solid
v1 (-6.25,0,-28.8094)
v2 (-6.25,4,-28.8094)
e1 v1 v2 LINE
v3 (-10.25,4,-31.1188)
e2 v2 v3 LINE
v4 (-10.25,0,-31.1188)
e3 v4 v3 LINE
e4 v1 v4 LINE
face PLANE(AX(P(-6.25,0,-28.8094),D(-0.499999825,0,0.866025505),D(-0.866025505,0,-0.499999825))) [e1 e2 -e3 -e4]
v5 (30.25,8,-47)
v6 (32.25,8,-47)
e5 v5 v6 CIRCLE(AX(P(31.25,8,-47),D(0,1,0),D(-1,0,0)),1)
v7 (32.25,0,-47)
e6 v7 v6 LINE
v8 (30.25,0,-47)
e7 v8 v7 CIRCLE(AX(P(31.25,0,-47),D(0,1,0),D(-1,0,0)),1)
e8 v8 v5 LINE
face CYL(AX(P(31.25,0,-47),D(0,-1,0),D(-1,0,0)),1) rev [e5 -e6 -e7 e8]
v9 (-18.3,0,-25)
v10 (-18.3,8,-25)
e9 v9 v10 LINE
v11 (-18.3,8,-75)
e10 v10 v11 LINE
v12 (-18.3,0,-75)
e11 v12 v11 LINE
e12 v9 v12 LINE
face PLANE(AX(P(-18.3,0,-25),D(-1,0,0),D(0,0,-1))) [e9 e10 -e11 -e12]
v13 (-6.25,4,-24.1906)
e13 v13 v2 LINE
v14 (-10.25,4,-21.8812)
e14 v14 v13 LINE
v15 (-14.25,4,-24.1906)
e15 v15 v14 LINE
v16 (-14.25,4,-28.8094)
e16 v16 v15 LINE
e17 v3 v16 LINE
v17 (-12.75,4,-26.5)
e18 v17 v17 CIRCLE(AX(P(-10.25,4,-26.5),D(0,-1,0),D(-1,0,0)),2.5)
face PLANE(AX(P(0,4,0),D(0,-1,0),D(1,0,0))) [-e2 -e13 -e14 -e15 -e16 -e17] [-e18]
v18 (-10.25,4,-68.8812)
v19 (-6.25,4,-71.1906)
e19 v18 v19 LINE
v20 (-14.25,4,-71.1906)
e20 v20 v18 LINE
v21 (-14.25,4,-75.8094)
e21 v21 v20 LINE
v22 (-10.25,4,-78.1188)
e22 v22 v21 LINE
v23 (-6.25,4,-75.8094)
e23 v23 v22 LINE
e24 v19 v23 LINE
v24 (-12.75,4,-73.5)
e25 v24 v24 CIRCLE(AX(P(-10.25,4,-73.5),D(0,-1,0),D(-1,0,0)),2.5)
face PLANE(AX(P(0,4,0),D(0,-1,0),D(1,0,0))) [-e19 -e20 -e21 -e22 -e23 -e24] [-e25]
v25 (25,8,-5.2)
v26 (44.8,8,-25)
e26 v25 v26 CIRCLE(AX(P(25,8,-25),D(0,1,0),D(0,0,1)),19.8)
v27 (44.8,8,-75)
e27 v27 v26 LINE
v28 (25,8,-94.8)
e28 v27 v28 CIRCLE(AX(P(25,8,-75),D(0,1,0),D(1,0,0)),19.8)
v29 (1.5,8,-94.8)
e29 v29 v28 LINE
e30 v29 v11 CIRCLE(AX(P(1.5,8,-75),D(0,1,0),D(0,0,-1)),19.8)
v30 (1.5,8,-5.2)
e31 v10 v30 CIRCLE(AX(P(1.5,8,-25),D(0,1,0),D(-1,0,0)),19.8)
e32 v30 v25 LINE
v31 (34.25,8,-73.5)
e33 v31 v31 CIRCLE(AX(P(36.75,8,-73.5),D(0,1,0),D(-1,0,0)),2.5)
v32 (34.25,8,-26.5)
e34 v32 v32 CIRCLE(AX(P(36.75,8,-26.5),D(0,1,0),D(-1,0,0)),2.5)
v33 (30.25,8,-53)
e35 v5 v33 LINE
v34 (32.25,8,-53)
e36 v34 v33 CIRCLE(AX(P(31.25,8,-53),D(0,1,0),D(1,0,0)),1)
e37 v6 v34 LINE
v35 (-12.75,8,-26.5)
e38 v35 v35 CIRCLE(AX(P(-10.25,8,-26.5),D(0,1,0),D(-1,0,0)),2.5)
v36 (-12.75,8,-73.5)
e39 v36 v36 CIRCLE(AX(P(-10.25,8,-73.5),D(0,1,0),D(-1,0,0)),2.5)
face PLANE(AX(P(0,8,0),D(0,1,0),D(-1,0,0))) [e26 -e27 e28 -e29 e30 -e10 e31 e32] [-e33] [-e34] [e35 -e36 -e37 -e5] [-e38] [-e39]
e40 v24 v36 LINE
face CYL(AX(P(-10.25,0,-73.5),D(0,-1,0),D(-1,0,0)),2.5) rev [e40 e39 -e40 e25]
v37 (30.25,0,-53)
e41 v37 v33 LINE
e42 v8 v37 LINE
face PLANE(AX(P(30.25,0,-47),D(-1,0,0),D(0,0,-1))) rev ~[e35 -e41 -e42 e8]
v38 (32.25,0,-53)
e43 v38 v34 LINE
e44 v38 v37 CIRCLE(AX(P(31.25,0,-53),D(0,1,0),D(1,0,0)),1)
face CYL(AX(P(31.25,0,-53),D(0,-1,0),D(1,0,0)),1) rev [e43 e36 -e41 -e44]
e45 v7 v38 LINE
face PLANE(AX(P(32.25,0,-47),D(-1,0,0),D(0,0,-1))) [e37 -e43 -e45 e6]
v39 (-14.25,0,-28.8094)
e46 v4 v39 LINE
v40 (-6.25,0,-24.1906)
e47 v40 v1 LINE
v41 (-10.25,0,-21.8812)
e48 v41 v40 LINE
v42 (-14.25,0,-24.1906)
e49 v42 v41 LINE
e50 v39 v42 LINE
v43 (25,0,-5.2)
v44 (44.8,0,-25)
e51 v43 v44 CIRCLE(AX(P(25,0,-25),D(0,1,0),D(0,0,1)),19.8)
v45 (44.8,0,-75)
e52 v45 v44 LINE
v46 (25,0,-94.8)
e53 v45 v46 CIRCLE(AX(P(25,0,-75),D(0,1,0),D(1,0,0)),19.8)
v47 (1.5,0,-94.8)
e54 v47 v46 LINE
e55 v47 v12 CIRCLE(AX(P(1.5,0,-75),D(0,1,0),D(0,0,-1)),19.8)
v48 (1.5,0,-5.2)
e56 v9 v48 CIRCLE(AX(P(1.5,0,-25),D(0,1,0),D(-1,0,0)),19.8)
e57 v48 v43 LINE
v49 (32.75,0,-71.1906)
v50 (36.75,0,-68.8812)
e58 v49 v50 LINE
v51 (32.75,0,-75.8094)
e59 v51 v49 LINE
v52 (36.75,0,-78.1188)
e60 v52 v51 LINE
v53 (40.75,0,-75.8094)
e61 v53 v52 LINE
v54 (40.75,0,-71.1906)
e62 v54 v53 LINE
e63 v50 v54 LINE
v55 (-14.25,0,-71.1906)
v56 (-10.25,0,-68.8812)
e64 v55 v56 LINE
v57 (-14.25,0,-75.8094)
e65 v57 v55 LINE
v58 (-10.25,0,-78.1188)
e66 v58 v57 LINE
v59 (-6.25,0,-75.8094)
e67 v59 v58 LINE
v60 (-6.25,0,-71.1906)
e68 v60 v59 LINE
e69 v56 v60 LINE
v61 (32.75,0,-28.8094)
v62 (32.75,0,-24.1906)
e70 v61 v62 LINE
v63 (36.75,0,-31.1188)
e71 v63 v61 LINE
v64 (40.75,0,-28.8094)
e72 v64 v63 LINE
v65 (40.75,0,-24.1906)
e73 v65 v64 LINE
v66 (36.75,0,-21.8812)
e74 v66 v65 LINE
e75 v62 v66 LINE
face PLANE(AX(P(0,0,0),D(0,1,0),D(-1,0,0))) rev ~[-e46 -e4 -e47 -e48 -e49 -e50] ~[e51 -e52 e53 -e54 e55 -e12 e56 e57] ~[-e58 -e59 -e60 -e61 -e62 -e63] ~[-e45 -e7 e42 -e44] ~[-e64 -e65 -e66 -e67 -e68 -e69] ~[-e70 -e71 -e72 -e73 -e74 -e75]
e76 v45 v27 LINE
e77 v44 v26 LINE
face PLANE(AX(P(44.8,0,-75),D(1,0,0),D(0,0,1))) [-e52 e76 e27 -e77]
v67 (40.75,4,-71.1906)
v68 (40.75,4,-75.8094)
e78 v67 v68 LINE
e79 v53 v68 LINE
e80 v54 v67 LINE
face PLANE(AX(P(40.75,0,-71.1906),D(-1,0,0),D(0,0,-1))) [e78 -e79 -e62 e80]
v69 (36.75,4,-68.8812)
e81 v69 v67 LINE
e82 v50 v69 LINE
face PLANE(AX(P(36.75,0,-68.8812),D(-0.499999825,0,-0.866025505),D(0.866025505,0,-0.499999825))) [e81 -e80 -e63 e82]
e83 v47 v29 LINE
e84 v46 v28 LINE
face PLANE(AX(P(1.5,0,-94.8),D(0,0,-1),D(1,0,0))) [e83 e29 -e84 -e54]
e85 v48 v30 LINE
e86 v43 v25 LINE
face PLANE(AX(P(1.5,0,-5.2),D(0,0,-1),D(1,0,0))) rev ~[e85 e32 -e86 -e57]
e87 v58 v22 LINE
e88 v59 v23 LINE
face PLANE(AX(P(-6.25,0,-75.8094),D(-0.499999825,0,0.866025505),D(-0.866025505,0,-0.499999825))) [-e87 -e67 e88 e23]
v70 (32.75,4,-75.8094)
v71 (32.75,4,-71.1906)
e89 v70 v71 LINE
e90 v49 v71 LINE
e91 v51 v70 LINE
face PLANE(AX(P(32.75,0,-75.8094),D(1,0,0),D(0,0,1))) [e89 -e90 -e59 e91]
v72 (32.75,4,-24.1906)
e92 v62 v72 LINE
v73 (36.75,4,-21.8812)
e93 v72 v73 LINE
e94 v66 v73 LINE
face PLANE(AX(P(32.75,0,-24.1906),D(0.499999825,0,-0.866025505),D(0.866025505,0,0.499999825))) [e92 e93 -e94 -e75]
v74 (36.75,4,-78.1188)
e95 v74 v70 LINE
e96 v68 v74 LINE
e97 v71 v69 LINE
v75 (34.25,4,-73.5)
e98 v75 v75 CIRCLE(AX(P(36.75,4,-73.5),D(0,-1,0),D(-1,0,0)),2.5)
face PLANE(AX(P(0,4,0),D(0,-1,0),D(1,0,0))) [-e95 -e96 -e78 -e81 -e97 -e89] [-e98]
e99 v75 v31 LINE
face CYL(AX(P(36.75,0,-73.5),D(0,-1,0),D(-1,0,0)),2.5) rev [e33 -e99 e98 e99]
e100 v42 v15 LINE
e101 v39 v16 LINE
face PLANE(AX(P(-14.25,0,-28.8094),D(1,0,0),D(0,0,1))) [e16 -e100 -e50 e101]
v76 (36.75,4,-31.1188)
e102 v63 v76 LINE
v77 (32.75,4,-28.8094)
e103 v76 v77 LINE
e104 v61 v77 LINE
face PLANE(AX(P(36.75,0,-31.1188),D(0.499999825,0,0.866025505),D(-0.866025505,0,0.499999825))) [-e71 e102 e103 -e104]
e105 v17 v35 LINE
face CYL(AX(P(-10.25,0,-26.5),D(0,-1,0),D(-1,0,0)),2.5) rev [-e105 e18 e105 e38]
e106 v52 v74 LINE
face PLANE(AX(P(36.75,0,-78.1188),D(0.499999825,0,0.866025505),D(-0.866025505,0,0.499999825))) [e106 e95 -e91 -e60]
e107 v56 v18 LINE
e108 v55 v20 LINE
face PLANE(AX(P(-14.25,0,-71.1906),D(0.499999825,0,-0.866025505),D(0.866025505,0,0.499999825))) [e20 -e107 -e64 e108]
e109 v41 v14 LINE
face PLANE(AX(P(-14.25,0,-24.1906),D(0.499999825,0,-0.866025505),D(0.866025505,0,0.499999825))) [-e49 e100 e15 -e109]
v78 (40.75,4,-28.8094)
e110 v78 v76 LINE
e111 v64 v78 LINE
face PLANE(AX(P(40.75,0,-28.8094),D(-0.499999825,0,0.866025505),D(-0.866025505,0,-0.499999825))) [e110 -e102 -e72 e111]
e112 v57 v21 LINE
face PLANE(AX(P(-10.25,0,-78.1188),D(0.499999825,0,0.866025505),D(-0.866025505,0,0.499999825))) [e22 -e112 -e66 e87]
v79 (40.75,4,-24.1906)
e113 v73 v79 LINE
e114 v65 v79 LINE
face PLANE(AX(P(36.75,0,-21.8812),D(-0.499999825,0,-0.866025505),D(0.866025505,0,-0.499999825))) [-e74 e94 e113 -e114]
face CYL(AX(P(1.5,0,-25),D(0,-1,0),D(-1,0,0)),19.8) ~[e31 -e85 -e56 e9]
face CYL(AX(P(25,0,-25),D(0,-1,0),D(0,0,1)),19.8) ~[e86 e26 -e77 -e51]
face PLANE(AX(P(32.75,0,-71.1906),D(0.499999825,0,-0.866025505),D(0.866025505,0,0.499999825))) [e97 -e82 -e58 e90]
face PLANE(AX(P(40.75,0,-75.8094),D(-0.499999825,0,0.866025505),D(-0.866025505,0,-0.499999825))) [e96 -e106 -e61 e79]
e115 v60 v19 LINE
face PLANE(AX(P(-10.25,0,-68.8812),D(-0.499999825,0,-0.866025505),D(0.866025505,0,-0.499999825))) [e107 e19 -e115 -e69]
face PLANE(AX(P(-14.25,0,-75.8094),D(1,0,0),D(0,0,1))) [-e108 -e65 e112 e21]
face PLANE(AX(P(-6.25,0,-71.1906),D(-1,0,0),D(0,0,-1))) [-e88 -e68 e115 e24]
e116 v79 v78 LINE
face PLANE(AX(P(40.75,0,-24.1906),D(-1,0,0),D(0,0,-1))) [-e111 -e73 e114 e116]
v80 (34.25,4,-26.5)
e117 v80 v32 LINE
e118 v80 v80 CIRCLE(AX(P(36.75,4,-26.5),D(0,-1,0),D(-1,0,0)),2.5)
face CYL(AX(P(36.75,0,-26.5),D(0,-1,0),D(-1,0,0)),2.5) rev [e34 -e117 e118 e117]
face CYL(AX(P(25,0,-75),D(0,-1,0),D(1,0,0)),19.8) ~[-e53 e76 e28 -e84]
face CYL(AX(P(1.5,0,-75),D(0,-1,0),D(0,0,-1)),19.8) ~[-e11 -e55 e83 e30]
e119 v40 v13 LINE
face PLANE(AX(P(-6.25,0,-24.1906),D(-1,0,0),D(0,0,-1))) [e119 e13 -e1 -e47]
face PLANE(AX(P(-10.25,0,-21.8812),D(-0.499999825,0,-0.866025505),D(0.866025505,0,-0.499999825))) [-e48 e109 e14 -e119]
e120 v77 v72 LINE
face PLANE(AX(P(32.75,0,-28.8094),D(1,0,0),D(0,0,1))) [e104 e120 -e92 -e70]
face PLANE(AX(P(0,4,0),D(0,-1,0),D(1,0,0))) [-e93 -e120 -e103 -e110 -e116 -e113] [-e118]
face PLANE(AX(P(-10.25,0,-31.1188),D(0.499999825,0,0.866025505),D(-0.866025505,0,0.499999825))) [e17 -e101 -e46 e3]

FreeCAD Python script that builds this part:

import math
import FreeCAD as App
import Part
import Sketcher
from FreeCAD import Vector
Q = App.Units.Quantity


def add_polygon(sketch, points):
    """Adds a closed chain of lines whose ends are joined by coincident constraints."""
    first, n = sketch.GeometryCount, len(points)
    for a, b in zip(points, points[1:] + points[:1]):
        sketch.addGeometry(Part.LineSegment(App.Vector(*a, 0), App.Vector(*b, 0)), False)
    for i in range(n):
        sketch.addConstraint(Sketcher.Constraint("Coincident", first + i, 2, first + (i + 1) % n, 1))

doc = App.newDocument("Part")
body = doc.addObject("PartDesign::Body", "Body")

sketch1 = body.newObject("Sketcher::SketchObject", "Sketch")
sketch1.AttachmentSupport = (doc.getObject("XZ_Plane"), [""])
sketch1.MapMode = "FlatFace"
sketch1.addGeometry(Part.LineSegment(Vector(44.8, -25, 0), Vector(44.8, -75, 0)), False)
sketch1.addGeometry(Part.ArcOfCircle(Part.Circle(Vector(25, -75, 0), Vector(0, 0, 1), 19.8), math.radians(-90), math.radians(0)), False)
sketch1.addGeometry(Part.LineSegment(Vector(25, -94.8, 0), Vector(1.5, -94.8, 0)), False)
sketch1.addGeometry(Part.ArcOfCircle(Part.Circle(Vector(1.5, -75, 0), Vector(0, 0, 1), 19.8), math.radians(180), math.radians(270)), False)
sketch1.addGeometry(Part.LineSegment(Vector(-18.3, -75, 0), Vector(-18.3, -25, 0)), False)
sketch1.addGeometry(Part.ArcOfCircle(Part.Circle(Vector(1.5, -25, 0), Vector(0, 0, 1), 19.8), math.radians(90), math.radians(180)), False)
sketch1.addGeometry(Part.LineSegment(Vector(1.5, -5.2, 0), Vector(25, -5.2, 0)), False)
sketch1.addGeometry(Part.ArcOfCircle(Part.Circle(Vector(25, -25, 0), Vector(0, 0, 1), 19.8), math.radians(0), math.radians(90)), False)
sketch1.addGeometry(Part.Circle(Vector(36.75, -73.5, 0), Vector(0, 0, 1), 2.5), False)
sketch1.addGeometry(Part.Circle(Vector(-10.25, -73.5, 0), Vector(0, 0, 1), 2.5), False)
sketch1.addGeometry(Part.ArcOfCircle(Part.Circle(Vector(31.25, -47, 0), Vector(0, 0, 1), 1), math.radians(0), math.radians(180)), False)
sketch1.addGeometry(Part.LineSegment(Vector(30.25, -47, 0), Vector(30.25, -53, 0)), False)
sketch1.addGeometry(Part.ArcOfCircle(Part.Circle(Vector(31.25, -53, 0), Vector(0, 0, 1), 1), math.radians(180), math.radians(360)), False)
sketch1.addGeometry(Part.LineSegment(Vector(32.25, -53, 0), Vector(32.25, -47, 0)), False)
sketch1.addGeometry(Part.Circle(Vector(36.75, -26.5, 0), Vector(0, 0, 1), 2.5), False)
sketch1.addGeometry(Part.Circle(Vector(-10.25, -26.5, 0), Vector(0, 0, 1), 2.5), False)
sketch1.addConstraint(Sketcher.Constraint("Tangent", 0, 2, 1, 2))
sketch1.addConstraint(Sketcher.Constraint("Tangent", 1, 1, 2, 1))
sketch1.addConstraint(Sketcher.Constraint("Tangent", 2, 2, 3, 2))
sketch1.addConstraint(Sketcher.Constraint("Tangent", 3, 1, 4, 1))
sketch1.addConstraint(Sketcher.Constraint("Tangent", 4, 2, 5, 2))
sketch1.addConstraint(Sketcher.Constraint("Tangent", 5, 1, 6, 1))
sketch1.addConstraint(Sketcher.Constraint("Tangent", 6, 2, 7, 2))
sketch1.addConstraint(Sketcher.Constraint("Tangent", 7, 1, 0, 1))
sketch1.addConstraint(Sketcher.Constraint("Tangent", 10, 2, 11, 1))
sketch1.addConstraint(Sketcher.Constraint("Tangent", 11, 2, 12, 1))
sketch1.addConstraint(Sketcher.Constraint("Tangent", 12, 2, 13, 1))
sketch1.addConstraint(Sketcher.Constraint("Tangent", 13, 2, 10, 1))
sketch1.addConstraint(Sketcher.Constraint("Vertical", 0))
sketch1.addConstraint(Sketcher.Constraint("Horizontal", 2))
sketch1.addConstraint(Sketcher.Constraint("Vertical", 4))
sketch1.addConstraint(Sketcher.Constraint("Horizontal", 6))
sketch1.addConstraint(Sketcher.Constraint("Vertical", 11))
sketch1.addConstraint(Sketcher.Constraint("Vertical", 13))
sketch1.addConstraint(Sketcher.Constraint("Equal", 1, 3))
sketch1.addConstraint(Sketcher.Constraint("Equal", 3, 5))
sketch1.addConstraint(Sketcher.Constraint("Equal", 5, 7))
sketch1.addConstraint(Sketcher.Constraint("Equal", 8, 9))
sketch1.addConstraint(Sketcher.Constraint("Equal", 9, 14))
sketch1.addConstraint(Sketcher.Constraint("Equal", 14, 15))
sketch1.addConstraint(Sketcher.Constraint("Horizontal", 8, 3, 9, 3))
sketch1.addConstraint(Sketcher.Constraint("Horizontal", 14, 3, 15, 3))
sketch1.addConstraint(Sketcher.Constraint("Vertical", 8, 3, 14, 3))
sketch1.addConstraint(Sketcher.Constraint("Vertical", 9, 3, 15, 3))
sketch1.addConstraint(Sketcher.Constraint("Diameter", 8, Q("5 mm")))
sketch1.addConstraint(Sketcher.Constraint("Radius", 1, Q("19.8 mm")))
sketch1.addConstraint(Sketcher.Constraint("Radius", 10, Q("1 mm")))
sketch1.addConstraint(Sketcher.Constraint("DistanceY", 0, 2, 0, 1, Q("50 mm")))
sketch1.addConstraint(Sketcher.Constraint("DistanceY", 11, 2, 11, 1, Q("6 mm")))
sketch1.addConstraint(Sketcher.Constraint("DistanceX", 2, 2, 2, 1, Q("23.5 mm")))
sketch1.addConstraint(Sketcher.Constraint("DistanceX", -1, 1, 1, 3, Q("25 mm")))
sketch1.addConstraint(Sketcher.Constraint("DistanceY", 1, 3, -1, 1, Q("75 mm")))
sketch1.addConstraint(Sketcher.Constraint("DistanceY", 10, 3, -1, 1, Q("47 mm")))
sketch1.addConstraint(Sketcher.Constraint("DistanceX", 9, 3, 8, 3, Q("47 mm")))
sketch1.addConstraint(Sketcher.Constraint("DistanceY", 8, 3, 14, 3, Q("47 mm")))
sketch1.addConstraint(Sketcher.Constraint("DistanceY", 8, 3, -1, 1, Q("73.5 mm")))
sketch1.addConstraint(Sketcher.Constraint("DistanceX", 10, 3, 8, 3, Q("5.5 mm")))
sketch1.addConstraint(Sketcher.Constraint("DistanceX", -1, 1, 8, 3, Q("36.75 mm")))
pad1 = body.newObject("PartDesign::Pad", "Pad")
pad1.Profile = sketch1
pad1.Length = 8
pad1.Reversed = True

sketch2 = body.newObject("Sketcher::SketchObject", "Sketch001")
sketch2.AttachmentSupport = (doc.getObject("XZ_Plane"), [""])
sketch2.MapMode = "FlatFace"
add_polygon(sketch2, [(36.75, -31.1188), (40.75, -28.8094), (40.75, -24.1906), (36.75, -21.8812), (32.75, -24.1906), (32.75, -28.8094)])
add_polygon(sketch2, [(36.75, -78.1188), (40.75, -75.8094), (40.75, -71.1906), (36.75, -68.8812), (32.75, -71.1906), (32.75, -75.8094)])
add_polygon(sketch2, [(-10.25, -78.1188), (-6.25, -75.8094), (-6.25, -71.1906), (-10.25, -68.8812), (-14.25, -71.1906), (-14.25, -75.8094)])
add_polygon(sketch2, [(-10.25, -31.1188), (-6.25, -28.8094), (-6.25, -24.1906), (-10.25, -21.8812), (-14.25, -24.1906), (-14.25, -28.8094)])
sketch2.addConstraint(Sketcher.Constraint("Vertical", 1))
sketch2.addConstraint(Sketcher.Constraint("Vertical", 4))
sketch2.addConstraint(Sketcher.Constraint("Vertical", 7))
sketch2.addConstraint(Sketcher.Constraint("Vertical", 10))
sketch2.addConstraint(Sketcher.Constraint("Vertical", 13))
sketch2.addConstraint(Sketcher.Constraint("Vertical", 16))
sketch2.addConstraint(Sketcher.Constraint("Vertical", 19))
sketch2.addConstraint(Sketcher.Constraint("Vertical", 22))
sketch2.addConstraint(Sketcher.Constraint("Parallel", 0, 3))
sketch2.addConstraint(Sketcher.Constraint("Parallel", 2, 5))
sketch2.addConstraint(Sketcher.Constraint("Parallel", 3, 6))
sketch2.addConstraint(Sketcher.Constraint("Parallel", 5, 8))
sketch2.addConstraint(Sketcher.Constraint("Parallel", 6, 9))
sketch2.addConstraint(Sketcher.Constraint("Parallel", 8, 11))
sketch2.addConstraint(Sketcher.Constraint("Parallel", 9, 12))
sketch2.addConstraint(Sketcher.Constraint("Parallel", 11, 14))
sketch2.addConstraint(Sketcher.Constraint("Parallel", 12, 15))
sketch2.addConstraint(Sketcher.Constraint("Parallel", 14, 17))
sketch2.addConstraint(Sketcher.Constraint("Parallel", 15, 18))
sketch2.addConstraint(Sketcher.Constraint("Parallel", 17, 20))
sketch2.addConstraint(Sketcher.Constraint("Parallel", 18, 21))
sketch2.addConstraint(Sketcher.Constraint("Parallel", 20, 23))
sketch2.addConstraint(Sketcher.Constraint("Horizontal", 1, 2, 3, 2))
sketch2.addConstraint(Sketcher.Constraint("Horizontal", 0, 2, 4, 2))
sketch2.addConstraint(Sketcher.Constraint("Horizontal", 7, 2, 9, 2))
sketch2.addConstraint(Sketcher.Constraint("Horizontal", 6, 2, 10, 2))
sketch2.addConstraint(Sketcher.Constraint("Horizontal", 10, 2, 12, 2))
sketch2.addConstraint(Sketcher.Constraint("Horizontal", 9, 2, 13, 2))
sketch2.addConstraint(Sketcher.Constraint("Horizontal", 8, 2, 14, 2))
sketch2.addConstraint(Sketcher.Constraint("Horizontal", 13, 2, 15, 2))
sketch2.addConstraint(Sketcher.Constraint("Horizontal", 12, 2, 16, 2))
sketch2.addConstraint(Sketcher.Constraint("Horizontal", 4, 2, 18, 2))
sketch2.addConstraint(Sketcher.Constraint("Horizontal", 3, 2, 19, 2))
sketch2.addConstraint(Sketcher.Constraint("Horizontal", 2, 2, 20, 2))
sketch2.addConstraint(Sketcher.Constraint("Horizontal", 19, 2, 21, 2))
sketch2.addConstraint(Sketcher.Constraint("Horizontal", 18, 2, 22, 2))
sketch2.addConstraint(Sketcher.Constraint("Vertical", 2, 2, 5, 2))
sketch2.addConstraint(Sketcher.Constraint("Vertical", 1, 2, 6, 2))
sketch2.addConstraint(Sketcher.Constraint("Vertical", 5, 2, 8, 2))
sketch2.addConstraint(Sketcher.Constraint("Vertical", 13, 2, 18, 2))
sketch2.addConstraint(Sketcher.Constraint("Equal", 4, 7))
sketch2.addConstraint(Sketcher.Constraint("Angle", 0, Q("30 deg")))
sketch2.addConstraint(Sketcher.Constraint("DistanceX", 2, 2, 1, 2, Q("4 mm")))
sketch2.addConstraint(Sketcher.Constraint("DistanceY", 6, 2, 0, 2, Q("47 mm")))
sketch2.addConstraint(Sketcher.Constraint("DistanceX", 12, 2, 10, 2, Q("39 mm")))
sketch2.addConstraint(Sketcher.Constraint("DistanceX", -1, 1, 0, 2, Q("40.75 mm")))
sketch2.addConstraint(Sketcher.Constraint("DistanceY", 1, 1, 1, 2, Q("4.6188 mm")))
sketch2.addConstraint(Sketcher.Constraint("DistanceY", 0, 2, -1, 1, Q("28.8094 mm")))
pocket1 = body.newObject("PartDesign::Pocket", "Pocket")
pocket1.Profile = sketch2
pocket1.Length = 4

doc.recompute()
